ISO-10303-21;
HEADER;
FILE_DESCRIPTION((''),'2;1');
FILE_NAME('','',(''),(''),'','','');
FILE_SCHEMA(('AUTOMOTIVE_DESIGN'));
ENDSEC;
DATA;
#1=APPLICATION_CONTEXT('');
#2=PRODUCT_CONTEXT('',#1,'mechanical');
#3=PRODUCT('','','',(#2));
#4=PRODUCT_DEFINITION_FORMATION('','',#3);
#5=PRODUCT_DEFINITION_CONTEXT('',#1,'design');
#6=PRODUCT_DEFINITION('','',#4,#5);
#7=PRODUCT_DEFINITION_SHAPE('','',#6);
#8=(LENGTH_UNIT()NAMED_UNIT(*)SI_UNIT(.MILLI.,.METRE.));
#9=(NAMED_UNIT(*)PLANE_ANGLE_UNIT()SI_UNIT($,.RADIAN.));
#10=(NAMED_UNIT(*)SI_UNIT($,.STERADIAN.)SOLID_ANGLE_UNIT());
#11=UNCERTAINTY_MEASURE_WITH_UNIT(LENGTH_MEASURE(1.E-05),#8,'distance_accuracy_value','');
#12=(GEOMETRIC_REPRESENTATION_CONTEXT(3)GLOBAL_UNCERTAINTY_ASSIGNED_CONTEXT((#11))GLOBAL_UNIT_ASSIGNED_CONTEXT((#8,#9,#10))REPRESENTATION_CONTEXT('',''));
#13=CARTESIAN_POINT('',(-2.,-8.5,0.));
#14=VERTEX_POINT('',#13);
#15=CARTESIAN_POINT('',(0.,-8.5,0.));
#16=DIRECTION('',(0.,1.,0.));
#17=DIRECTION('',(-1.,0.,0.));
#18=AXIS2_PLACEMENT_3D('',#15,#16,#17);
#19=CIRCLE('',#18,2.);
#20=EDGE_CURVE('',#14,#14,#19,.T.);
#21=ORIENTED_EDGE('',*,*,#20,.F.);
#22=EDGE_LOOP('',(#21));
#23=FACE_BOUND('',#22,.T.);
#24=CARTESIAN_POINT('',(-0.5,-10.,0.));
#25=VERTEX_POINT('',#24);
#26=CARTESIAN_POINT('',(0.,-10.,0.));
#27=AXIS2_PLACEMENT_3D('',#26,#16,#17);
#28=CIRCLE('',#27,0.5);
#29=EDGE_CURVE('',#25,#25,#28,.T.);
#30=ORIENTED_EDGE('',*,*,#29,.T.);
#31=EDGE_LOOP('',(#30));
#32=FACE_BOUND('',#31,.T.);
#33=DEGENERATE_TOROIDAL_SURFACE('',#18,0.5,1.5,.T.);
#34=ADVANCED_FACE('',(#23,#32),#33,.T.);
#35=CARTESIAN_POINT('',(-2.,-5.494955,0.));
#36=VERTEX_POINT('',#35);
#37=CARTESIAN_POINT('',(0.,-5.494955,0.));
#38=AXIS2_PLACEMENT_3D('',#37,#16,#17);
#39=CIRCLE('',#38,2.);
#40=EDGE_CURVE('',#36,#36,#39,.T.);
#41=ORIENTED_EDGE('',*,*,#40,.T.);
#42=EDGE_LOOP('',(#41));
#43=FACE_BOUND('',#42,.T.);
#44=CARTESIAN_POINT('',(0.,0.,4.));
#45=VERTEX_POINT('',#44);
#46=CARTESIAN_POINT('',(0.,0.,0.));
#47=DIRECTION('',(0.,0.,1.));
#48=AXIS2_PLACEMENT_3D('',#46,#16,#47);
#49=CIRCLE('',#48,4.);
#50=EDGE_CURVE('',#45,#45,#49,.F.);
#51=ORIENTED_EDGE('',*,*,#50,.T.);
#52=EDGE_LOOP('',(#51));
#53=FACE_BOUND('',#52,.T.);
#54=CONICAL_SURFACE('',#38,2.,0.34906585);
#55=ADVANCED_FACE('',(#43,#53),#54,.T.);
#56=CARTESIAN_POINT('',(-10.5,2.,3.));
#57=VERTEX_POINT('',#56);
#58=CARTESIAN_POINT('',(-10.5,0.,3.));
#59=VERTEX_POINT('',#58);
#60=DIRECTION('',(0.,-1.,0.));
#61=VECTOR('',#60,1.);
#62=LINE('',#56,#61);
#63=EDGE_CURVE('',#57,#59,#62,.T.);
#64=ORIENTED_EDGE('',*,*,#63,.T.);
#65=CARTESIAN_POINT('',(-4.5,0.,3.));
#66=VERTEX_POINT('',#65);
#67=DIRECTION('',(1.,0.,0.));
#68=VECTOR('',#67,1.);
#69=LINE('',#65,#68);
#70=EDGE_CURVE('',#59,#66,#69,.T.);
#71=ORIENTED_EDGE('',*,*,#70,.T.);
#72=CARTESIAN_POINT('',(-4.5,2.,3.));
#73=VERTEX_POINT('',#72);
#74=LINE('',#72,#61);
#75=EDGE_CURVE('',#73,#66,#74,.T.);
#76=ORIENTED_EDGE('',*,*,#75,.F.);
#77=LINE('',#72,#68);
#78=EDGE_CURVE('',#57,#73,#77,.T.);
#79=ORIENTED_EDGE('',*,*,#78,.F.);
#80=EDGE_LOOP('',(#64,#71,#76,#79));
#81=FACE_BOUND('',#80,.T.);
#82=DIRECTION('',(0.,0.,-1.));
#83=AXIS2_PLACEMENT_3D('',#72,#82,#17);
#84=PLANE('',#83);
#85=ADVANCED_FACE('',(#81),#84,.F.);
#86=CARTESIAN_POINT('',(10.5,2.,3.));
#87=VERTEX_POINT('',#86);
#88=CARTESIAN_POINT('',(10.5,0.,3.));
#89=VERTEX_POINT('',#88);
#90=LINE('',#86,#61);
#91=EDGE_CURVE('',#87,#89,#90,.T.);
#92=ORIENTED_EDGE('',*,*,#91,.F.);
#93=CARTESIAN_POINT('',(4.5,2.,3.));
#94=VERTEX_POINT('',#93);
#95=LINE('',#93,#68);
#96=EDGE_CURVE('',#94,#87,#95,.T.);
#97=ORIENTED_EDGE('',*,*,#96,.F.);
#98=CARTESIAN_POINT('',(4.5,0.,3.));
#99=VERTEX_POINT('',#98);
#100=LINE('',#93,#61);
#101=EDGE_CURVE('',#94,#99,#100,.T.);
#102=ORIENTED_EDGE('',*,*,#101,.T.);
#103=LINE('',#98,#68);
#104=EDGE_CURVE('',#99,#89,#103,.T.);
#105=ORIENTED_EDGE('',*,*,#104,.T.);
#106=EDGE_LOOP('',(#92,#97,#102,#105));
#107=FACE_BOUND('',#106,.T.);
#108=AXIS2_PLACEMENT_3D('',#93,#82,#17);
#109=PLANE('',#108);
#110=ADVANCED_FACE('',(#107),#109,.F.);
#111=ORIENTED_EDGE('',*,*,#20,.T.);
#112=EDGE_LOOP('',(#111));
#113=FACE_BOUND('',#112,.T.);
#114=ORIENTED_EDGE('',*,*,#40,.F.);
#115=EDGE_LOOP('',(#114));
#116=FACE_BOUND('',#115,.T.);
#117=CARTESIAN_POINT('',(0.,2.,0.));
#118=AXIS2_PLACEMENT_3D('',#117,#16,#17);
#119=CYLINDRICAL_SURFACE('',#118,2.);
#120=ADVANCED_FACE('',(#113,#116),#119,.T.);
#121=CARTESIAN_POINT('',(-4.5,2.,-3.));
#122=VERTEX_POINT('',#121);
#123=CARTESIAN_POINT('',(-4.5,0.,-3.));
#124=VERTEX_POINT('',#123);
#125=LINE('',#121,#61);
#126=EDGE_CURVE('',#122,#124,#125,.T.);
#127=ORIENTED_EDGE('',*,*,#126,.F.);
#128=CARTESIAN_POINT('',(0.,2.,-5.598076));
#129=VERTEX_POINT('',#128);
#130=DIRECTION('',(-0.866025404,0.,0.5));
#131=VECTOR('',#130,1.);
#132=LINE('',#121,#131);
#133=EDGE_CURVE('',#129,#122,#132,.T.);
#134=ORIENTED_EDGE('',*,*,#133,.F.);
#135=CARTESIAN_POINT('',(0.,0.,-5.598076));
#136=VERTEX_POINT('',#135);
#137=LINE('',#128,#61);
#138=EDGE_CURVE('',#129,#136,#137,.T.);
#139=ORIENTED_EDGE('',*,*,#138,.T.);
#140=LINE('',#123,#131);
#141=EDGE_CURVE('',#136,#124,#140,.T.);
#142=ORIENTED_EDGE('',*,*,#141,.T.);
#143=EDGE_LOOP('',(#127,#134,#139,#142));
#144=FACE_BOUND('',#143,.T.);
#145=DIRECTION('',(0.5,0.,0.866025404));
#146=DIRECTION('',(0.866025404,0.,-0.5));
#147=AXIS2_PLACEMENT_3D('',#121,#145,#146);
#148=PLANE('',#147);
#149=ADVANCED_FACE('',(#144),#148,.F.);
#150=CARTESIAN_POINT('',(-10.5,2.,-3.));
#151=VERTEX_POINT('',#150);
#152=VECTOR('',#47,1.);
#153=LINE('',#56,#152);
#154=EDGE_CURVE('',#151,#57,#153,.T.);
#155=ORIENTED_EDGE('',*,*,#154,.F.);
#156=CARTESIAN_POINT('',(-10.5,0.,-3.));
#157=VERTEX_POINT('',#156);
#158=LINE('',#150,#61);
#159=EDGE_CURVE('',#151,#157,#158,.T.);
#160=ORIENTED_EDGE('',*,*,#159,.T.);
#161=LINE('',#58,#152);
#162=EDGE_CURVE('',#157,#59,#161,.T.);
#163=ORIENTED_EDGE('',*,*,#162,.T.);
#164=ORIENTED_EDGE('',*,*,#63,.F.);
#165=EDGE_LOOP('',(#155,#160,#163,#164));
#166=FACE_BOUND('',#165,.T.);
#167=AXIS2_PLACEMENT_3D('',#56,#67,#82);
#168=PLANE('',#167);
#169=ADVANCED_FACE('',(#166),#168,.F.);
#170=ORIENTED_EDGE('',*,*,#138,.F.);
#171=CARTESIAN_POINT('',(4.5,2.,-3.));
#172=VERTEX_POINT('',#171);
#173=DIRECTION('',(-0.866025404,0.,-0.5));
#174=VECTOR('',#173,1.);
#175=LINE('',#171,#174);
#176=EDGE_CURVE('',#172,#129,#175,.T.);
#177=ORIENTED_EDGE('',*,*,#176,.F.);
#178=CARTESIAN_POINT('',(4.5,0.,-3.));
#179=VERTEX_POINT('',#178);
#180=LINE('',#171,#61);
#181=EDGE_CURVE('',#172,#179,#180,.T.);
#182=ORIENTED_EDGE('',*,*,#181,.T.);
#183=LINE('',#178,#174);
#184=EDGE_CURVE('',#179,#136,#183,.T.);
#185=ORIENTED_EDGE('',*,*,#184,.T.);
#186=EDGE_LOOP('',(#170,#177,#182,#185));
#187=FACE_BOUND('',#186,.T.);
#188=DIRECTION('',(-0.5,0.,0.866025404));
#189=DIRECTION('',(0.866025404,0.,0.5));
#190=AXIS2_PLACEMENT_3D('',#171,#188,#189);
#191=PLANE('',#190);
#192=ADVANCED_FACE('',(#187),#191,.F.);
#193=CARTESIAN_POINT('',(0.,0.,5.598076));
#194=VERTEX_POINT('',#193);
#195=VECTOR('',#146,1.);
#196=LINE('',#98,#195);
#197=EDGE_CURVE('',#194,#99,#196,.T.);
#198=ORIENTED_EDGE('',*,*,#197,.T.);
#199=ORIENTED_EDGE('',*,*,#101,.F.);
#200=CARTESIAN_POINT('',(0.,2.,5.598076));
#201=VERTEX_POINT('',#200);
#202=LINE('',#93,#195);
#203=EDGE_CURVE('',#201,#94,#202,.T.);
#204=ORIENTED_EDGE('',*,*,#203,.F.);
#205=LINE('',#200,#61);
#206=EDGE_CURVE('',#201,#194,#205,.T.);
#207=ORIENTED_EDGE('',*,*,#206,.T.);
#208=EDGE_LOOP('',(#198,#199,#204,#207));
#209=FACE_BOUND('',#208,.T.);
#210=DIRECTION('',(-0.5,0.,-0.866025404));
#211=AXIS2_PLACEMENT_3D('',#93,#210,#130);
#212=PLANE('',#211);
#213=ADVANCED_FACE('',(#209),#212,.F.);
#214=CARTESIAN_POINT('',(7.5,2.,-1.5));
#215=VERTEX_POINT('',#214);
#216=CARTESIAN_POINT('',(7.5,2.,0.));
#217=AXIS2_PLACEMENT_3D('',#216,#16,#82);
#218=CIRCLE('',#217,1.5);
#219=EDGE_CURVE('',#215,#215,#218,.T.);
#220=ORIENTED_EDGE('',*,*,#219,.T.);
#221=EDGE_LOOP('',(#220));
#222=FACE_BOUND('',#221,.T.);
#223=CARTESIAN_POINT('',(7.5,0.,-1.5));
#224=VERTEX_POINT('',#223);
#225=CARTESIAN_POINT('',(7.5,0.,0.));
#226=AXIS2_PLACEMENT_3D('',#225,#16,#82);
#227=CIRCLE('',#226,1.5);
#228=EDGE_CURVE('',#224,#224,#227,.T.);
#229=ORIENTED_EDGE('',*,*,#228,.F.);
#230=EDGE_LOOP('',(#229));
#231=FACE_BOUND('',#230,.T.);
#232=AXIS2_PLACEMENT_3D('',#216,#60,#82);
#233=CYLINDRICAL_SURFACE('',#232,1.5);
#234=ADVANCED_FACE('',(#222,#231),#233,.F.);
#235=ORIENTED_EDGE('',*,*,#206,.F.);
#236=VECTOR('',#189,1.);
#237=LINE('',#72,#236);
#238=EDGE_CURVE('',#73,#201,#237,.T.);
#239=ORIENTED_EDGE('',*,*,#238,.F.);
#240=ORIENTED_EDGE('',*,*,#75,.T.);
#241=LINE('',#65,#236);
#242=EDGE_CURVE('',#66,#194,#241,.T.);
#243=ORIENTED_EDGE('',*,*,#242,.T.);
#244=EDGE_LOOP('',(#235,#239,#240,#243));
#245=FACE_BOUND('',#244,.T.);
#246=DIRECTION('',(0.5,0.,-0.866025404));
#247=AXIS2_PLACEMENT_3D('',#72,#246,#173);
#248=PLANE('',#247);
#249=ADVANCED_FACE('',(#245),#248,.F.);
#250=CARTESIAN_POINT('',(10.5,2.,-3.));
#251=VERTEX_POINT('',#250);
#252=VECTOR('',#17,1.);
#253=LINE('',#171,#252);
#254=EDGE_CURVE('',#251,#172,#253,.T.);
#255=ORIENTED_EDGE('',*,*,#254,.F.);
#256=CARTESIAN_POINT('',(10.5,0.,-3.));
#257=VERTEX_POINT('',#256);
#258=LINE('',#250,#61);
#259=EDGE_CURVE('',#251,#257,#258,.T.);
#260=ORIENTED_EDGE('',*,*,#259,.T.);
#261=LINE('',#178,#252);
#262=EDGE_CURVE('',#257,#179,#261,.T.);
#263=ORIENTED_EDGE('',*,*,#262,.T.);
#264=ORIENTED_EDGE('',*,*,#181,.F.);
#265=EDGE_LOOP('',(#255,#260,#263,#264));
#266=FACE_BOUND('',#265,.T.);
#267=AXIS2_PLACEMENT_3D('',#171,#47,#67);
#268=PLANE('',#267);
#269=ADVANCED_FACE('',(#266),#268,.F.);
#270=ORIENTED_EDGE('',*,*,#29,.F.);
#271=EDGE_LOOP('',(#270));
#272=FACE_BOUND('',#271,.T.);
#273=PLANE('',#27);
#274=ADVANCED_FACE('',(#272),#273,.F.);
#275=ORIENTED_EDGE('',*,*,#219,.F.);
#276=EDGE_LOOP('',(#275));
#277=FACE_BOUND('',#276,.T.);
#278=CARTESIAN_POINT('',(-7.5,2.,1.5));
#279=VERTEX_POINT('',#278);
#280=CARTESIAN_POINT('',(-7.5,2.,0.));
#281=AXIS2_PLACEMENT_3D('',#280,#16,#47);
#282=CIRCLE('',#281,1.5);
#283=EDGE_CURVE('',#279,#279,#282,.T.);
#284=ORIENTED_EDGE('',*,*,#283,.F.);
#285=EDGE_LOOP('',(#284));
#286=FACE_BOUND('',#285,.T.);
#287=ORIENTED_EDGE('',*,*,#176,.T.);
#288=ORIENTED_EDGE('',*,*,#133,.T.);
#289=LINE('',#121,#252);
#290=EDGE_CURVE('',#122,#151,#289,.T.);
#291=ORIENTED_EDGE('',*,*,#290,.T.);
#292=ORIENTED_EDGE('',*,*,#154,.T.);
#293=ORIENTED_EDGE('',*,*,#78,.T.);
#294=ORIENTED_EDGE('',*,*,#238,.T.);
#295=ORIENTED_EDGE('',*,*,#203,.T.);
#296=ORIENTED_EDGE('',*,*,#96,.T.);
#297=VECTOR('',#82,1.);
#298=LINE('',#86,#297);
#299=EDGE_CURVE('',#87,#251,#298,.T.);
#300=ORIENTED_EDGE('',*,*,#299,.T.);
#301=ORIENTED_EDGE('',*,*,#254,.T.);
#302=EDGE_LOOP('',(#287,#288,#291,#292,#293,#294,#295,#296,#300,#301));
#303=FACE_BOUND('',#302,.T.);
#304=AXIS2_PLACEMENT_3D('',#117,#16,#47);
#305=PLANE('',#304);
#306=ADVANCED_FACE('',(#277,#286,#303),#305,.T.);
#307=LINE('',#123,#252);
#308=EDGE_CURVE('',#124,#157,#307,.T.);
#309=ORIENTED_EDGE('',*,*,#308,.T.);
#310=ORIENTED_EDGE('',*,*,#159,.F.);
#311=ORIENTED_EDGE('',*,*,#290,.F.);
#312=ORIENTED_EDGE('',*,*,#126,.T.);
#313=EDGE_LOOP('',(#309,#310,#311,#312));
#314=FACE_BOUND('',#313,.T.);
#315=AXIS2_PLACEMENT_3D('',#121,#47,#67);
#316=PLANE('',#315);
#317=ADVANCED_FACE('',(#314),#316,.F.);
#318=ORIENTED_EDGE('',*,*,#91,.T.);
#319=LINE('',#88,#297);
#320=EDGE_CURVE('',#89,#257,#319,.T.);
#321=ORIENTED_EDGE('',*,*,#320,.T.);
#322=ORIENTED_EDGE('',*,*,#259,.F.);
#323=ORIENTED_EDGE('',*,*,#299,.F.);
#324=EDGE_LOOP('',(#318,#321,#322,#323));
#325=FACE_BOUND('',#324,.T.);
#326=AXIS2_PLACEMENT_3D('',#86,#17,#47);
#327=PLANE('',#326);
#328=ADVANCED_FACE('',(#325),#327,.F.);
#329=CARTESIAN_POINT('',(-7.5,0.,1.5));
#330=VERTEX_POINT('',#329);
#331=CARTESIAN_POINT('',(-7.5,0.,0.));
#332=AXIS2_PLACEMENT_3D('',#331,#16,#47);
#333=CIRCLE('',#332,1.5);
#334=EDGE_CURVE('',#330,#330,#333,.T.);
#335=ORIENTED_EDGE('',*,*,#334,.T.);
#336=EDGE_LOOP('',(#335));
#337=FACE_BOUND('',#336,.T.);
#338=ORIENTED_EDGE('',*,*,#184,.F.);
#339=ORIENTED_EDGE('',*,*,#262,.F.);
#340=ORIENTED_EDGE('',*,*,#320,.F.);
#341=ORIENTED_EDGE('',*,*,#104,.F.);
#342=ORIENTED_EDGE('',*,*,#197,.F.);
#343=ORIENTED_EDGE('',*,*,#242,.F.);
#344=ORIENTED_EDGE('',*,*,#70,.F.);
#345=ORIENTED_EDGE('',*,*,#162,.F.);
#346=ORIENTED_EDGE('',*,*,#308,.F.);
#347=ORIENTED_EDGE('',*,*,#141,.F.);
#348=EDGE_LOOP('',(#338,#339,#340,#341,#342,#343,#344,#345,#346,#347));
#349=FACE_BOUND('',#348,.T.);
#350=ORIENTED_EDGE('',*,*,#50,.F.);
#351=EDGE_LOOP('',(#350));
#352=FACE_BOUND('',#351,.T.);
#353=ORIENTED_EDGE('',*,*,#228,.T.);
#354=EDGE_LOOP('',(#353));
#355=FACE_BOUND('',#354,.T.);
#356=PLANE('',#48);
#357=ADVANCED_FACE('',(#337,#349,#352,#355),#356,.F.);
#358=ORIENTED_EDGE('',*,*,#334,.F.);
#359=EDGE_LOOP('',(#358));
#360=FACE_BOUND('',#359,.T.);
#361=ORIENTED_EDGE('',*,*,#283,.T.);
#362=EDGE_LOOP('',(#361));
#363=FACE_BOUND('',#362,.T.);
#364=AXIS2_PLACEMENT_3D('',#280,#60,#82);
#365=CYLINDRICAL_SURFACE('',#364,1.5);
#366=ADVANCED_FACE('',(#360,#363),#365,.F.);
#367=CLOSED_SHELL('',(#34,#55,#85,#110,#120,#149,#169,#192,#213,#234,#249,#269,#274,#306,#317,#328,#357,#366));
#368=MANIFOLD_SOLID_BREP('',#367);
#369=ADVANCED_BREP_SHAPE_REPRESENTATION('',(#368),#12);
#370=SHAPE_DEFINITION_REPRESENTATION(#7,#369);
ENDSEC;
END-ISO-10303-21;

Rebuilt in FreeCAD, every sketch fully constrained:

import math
import FreeCAD as App
import Part
import Sketcher

V = App.Vector
Q = App.Units.Quantity

doc = App.newDocument("Part")
body = doc.addObject("PartDesign::Body", "Body")

# Sketch on XZ plane
sketch1 = doc.addObject("Sketcher::SketchObject", "Sketch")
body.addObject(sketch1)
sketch1.AttachmentSupport = (doc.XZ_Plane, [""])
sketch1.MapMode = "FlatFace"
sketch1.addGeometry([
    Part.LineSegment(V(0, -5.598076, 0), V(-4.5, -3, 0)),  # 0
    Part.LineSegment(V(-4.5, -3, 0), V(-10.5, -3, 0)),  # 1
    Part.LineSegment(V(-10.5, -3, 0), V(-10.5, 3, 0)),  # 2
    Part.LineSegment(V(-10.5, 3, 0), V(-4.5, 3, 0)),  # 3
    Part.LineSegment(V(-4.5, 3, 0), V(0, 5.598076, 0)),  # 4
    Part.LineSegment(V(0, 5.598076, 0), V(4.5, 3, 0)),  # 5
    Part.LineSegment(V(4.5, 3, 0), V(10.5, 3, 0)),  # 6
    Part.LineSegment(V(10.5, 3, 0), V(10.5, -3, 0)),  # 7
    Part.LineSegment(V(10.5, -3, 0), V(4.5, -3, 0)),  # 8
    Part.LineSegment(V(4.5, -3, 0), V(0, -5.598076, 0)),  # 9
    Part.Circle(V(7.5, 0, 0), V(0, 0, 1), 1.5),  # 10
    Part.Circle(V(-7.5, 0, 0), V(0, 0, 1), 1.5),  # 11
], False)
sketch1.addConstraint([
    Sketcher.Constraint("Coincident", 0, 2, 1, 1),
    Sketcher.Constraint("Coincident", 1, 2, 2, 1),
    Sketcher.Constraint("Coincident", 2, 2, 3, 1),
    Sketcher.Constraint("Coincident", 3, 2, 4, 1),
    Sketcher.Constraint("Coincident", 4, 2, 5, 1),
    Sketcher.Constraint("Coincident", 5, 2, 6, 1),
    Sketcher.Constraint("Coincident", 6, 2, 7, 1),
    Sketcher.Constraint("Coincident", 7, 2, 8, 1),
    Sketcher.Constraint("Coincident", 8, 2, 9, 1),
    Sketcher.Constraint("Coincident", 9, 2, 0, 1),
    Sketcher.Constraint("Horizontal", 1),
    Sketcher.Constraint("Vertical", 2),
    Sketcher.Constraint("Horizontal", 3),
    Sketcher.Constraint("Horizontal", 6),
    Sketcher.Constraint("Vertical", 7),
    Sketcher.Constraint("Horizontal", 8),
    Sketcher.Constraint("Equal", 10, 11),
    Sketcher.Constraint("Symmetric", 10, 3, 11, 3, -1, 1),
    Sketcher.Constraint("Symmetric", 0, 2, 5, 2, -1, 1),
    Sketcher.Constraint("Symmetric", 2, 2, 7, 2, -1, 1),
    Sketcher.Constraint("Symmetric", 4, 2, 9, 2, -1, 1),
    Sketcher.Constraint("Symmetric", 3, 2, 5, 2, -2),
    Sketcher.Constraint("PointOnObject", 10, 3, -1),
    Sketcher.Constraint("PointOnObject", 4, 2, -2),
    Sketcher.Constraint("Parallel", 4, 9),
    Sketcher.Constraint("Equal", 8, 2),
    Sketcher.Constraint("Diameter", 10, Q("3 mm")),
    Sketcher.Constraint("DistanceX", 1, 2, 1, 1, Q("6 mm")),
    Sketcher.Constraint("Angle", 0, Q("150 deg")),
    Sketcher.Constraint("DistanceX", 11, 3, 10, 3, Q("15 mm")),
    Sketcher.Constraint("DistanceX", 11, 3, 0, 2, Q("3 mm")),
])
pad1 = doc.addObject("PartDesign::Pad", "Pad")
body.addObject(pad1)
pad1.Profile = sketch1
pad1.Length = 2
pad1.Reversed = True

# Sketch on XY plane
sketch2 = doc.addObject("Sketcher::SketchObject", "Sketch001")
body.addObject(sketch2)
sketch2.AttachmentSupport = (doc.XY_Plane, [""])
sketch2.MapMode = "FlatFace"
sketch2.addGeometry([
    Part.LineSegment(V(0, -10, 0), V(0.5, -10, 0)),  # 0
    Part.ArcOfCircle(Part.Circle(V(0.5, -8.5, 0), V(0, 0, 1), 1.5), math.radians(-90), math.radians(0)),  # 1
    Part.LineSegment(V(2, -8.5, 0), V(2, -5.494955, 0)),  # 2
    Part.LineSegment(V(2, -5.494955, 0), V(4, 0, 0)),  # 3
    Part.LineSegment(V(4, 0, 0), V(2, 0, 0)),  # 4
    Part.LineSegment(V(2, 0, 0), V(2, 2, 0)),  # 5
    Part.LineSegment(V(2, 2, 0), V(0, 2, 0)),  # 6
    Part.LineSegment(V(0, 2, 0), V(0, -10, 0)),  # 7
], False)
sketch2.addConstraint([
    Sketcher.Constraint("Tangent", 0, 2, 1, 1),
    Sketcher.Constraint("Tangent", 1, 2, 2, 1),
    Sketcher.Constraint("Coincident", 2, 2, 3, 1),
    Sketcher.Constraint("Coincident", 3, 2, 4, 1),
    Sketcher.Constraint("Coincident", 4, 2, 5, 1),
    Sketcher.Constraint("Coincident", 5, 2, 6, 1),
    Sketcher.Constraint("Coincident", 6, 2, 7, 1),
    Sketcher.Constraint("Coincident", 7, 2, 0, 1),
    Sketcher.Constraint("Horizontal", 0),
    Sketcher.Constraint("Vertical", 2),
    Sketcher.Constraint("Horizontal", 4),
    Sketcher.Constraint("Vertical", 5),
    Sketcher.Constraint("Horizontal", 6),
    Sketcher.Constraint("Vertical", 7),
    Sketcher.Constraint("PointOnObject", 3, 2, -1),
    Sketcher.Constraint("PointOnObject", 6, 2, -2),
    Sketcher.Constraint("Vertical", 2, 2, 4, 2),
    Sketcher.Constraint("Equal", 4, 6),
    Sketcher.Constraint("Equal", 6, 5),
    Sketcher.Constraint("Radius", 1, Q("1.5 mm")),
    Sketcher.Constraint("DistanceX", 4, 2, 4, 1, Q("2 mm")),
    Sketcher.Constraint("DistanceY", 7, 2, 7, 1, Q("12 mm")),
    Sketcher.Constraint("Angle", 3, Q("70 deg")),
])
revolution = doc.addObject("PartDesign::Revolution", "Revolution")
body.addObject(revolution)
revolution.Profile = sketch2
revolution.ReferenceAxis = (sketch2, ["V_Axis"])
revolution.Angle = 360

doc.recompute()
